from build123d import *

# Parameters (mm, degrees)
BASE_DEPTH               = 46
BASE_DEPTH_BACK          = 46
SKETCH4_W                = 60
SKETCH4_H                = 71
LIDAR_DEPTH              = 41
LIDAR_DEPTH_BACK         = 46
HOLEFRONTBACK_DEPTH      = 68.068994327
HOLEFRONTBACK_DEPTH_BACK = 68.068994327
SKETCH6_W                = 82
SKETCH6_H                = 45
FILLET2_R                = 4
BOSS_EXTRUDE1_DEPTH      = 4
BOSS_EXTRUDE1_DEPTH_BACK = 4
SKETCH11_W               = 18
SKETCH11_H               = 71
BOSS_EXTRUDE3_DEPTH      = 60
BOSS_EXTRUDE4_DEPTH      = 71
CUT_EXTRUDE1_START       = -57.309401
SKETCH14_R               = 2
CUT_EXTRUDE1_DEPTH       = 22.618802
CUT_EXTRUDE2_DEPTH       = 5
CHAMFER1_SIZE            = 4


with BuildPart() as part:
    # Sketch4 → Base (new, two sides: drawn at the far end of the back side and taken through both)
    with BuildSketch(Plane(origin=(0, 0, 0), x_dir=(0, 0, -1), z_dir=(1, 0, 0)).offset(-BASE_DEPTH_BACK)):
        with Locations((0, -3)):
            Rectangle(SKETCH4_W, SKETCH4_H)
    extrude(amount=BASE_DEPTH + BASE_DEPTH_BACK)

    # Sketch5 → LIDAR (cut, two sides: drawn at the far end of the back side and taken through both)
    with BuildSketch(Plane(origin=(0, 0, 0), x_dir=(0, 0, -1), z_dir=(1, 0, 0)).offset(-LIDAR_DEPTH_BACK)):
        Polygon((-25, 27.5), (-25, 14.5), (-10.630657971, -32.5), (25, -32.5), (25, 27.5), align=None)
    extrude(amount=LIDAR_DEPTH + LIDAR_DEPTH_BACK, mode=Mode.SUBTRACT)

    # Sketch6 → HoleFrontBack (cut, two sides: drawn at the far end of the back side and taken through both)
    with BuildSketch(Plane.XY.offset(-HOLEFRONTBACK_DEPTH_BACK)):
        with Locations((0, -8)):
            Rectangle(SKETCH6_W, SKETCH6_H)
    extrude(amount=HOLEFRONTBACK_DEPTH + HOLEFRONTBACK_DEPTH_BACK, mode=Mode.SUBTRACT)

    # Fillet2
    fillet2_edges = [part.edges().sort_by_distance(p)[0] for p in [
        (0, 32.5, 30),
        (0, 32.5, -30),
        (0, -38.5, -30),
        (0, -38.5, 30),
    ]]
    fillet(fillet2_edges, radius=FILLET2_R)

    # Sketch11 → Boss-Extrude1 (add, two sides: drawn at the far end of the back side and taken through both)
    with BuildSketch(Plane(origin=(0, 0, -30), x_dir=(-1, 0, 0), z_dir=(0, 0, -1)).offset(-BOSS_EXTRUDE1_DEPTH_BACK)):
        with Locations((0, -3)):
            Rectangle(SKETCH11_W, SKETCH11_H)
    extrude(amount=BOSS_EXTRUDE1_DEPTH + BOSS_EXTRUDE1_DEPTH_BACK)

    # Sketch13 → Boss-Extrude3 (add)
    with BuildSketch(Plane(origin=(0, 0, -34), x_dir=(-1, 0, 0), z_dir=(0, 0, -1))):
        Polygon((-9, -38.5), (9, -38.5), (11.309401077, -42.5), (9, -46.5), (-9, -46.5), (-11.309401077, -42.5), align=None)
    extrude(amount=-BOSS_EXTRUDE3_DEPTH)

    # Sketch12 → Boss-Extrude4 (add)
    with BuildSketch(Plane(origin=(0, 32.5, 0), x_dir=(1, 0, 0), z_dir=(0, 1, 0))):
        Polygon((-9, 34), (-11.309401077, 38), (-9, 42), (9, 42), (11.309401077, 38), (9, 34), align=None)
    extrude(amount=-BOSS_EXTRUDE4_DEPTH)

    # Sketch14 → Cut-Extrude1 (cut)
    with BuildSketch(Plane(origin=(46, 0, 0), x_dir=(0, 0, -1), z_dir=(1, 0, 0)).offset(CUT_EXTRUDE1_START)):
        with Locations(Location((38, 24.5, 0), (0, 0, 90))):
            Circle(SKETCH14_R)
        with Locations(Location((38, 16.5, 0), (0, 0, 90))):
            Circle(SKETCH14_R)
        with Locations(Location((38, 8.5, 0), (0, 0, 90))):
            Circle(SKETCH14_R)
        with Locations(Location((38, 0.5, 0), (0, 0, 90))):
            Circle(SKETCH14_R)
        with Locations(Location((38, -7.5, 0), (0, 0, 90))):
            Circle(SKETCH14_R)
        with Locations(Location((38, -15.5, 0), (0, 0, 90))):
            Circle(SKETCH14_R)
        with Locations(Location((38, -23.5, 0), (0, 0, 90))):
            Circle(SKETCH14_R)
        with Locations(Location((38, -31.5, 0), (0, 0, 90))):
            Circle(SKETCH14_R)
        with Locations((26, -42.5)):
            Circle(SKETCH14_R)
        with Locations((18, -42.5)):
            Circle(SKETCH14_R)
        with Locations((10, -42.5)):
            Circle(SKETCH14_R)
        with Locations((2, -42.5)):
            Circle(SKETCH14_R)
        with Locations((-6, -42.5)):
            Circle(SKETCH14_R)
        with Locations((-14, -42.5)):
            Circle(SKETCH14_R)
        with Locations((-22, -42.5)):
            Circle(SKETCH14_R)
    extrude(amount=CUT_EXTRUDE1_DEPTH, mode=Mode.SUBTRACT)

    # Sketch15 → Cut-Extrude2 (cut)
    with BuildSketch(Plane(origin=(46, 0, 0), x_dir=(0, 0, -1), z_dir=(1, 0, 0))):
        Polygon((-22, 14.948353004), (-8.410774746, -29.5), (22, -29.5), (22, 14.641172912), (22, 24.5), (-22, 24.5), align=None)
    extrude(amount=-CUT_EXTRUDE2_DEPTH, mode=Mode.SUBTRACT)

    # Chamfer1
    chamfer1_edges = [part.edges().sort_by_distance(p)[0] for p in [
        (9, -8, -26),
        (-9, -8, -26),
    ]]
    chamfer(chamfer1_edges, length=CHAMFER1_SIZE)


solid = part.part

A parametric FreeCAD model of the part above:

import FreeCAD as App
import Part
import Sketcher
Q = App.Units.Quantity


def edges_at(feature, points):
    """Names of the edges that pass closest to the given points."""
    edges = feature.Shape.Edges
    near = lambda p: min(range(len(edges)), key=lambda i: edges[i].distToShape(Part.Vertex(*p))[0])
    return sorted({f"Edge{near(p) + 1}" for p in points})


def add_polygon(sketch, points):
    """Adds a closed chain of lines whose ends are joined by coincident constraints."""
    first, n = sketch.GeometryCount, len(points)
    for a, b in zip(points, points[1:] + points[:1]):
        sketch.addGeometry(Part.LineSegment(App.Vector(*a, 0), App.Vector(*b, 0)), False)
    for i in range(n):
        sketch.addConstraint(Sketcher.Constraint("Coincident", first + i, 2, first + (i + 1) % n, 1))

doc = App.newDocument("Part")
params = doc.addObject("Spreadsheet::Sheet", "Params")
for row, (alias, value) in enumerate([
    ("sketch1_width", "71 mm"),
    ("sketch1_height", "60 mm"),
    ("pad1_length", "46 mm"),
    ("pad1_length2", "46 mm"),
    ("sketch2_width", "13 mm"),
    ("sketch2_width2", "60 mm"),
    ("sketch2_height", "50 mm"),
    ("pocket1_length", "41 mm"),
    ("pocket1_length2", "46 mm"),
    ("sketch3_width", "82 mm"),
    ("sketch3_height", "45 mm"),
    ("fillet_radius", "4 mm"),
    ("sketch4_width", "18 mm"),
    ("sketch4_height", "71 mm"),
    ("pad2_length", "4 mm"),
    ("pad2_length2", "4 mm"),
    ("sketch5_width", "18 mm"),
    ("pad3_length", "60 mm"),
    ("sketch6_width", "18 mm"),
    ("pad4_length", "71 mm"),
    ("sketch7_diameter", "4 mm"),
    ("pocket3_length", "22.618802 mm"),
    ("sketch8_width", "54 mm"),
    ("sketch8_height", "44 mm"),
    ("pocket4_length", "5 mm"),
    ("chamfer_size", "4 mm"),
], start=1):
    params.set(f"A{row}", alias)
    params.set(f"B{row}", "=" + value)
    params.setAlias(f"B{row}", alias)

body = doc.addObject("PartDesign::Body", "Body")

sketch1 = body.newObject("Sketcher::SketchObject", "Sketch")
sketch1.AttachmentSupport = (doc.getObject("YZ_Plane"), [""])
sketch1.MapMode = "FlatFace"
add_polygon(sketch1, [(32.5, 30), (-38.5, 30), (-38.5, -30), (32.5, -30)])
sketch1.addConstraint([
    Sketcher.Constraint("Horizontal", 0),
    Sketcher.Constraint("Vertical", 1),
    Sketcher.Constraint("Horizontal", 2),
    Sketcher.Constraint("Vertical", 3),
    Sketcher.Constraint("DistanceX", 0, 2, 0, 1, Q("71 mm")),
    Sketcher.Constraint("DistanceY", 1, 2, 1, 1, Q("60 mm")),
    Sketcher.Constraint("DistanceY", -1, 1, 0, 2, Q("30 mm")),
    Sketcher.Constraint("DistanceX", 0, 2, -1, 1, Q("38.5 mm")),
])
sketch1.setExpression("Constraints[8]", "Params.sketch1_width")
sketch1.setExpression("Constraints[9]", "Params.sketch1_height")
pad1 = body.newObject("PartDesign::Pad", "Pad")
pad1.Profile = sketch1
pad1.Type = "TwoLengths"
pad1.setExpression("Length", "Params.pad1_length")
pad1.setExpression("Length2", "Params.pad1_length2")

sketch2 = body.newObject("Sketcher::SketchObject", "Sketch001")
sketch2.AttachmentSupport = (doc.getObject("YZ_Plane"), [""])
sketch2.MapMode = "FlatFace"
add_polygon(sketch2, [(27.5, 25), (14.5, 25), (-32.5, 10.630658), (-32.5, -25), (27.5, -25)])
sketch2.addConstraint([
    Sketcher.Constraint("Horizontal", 0),
    Sketcher.Constraint("Vertical", 2),
    Sketcher.Constraint("Horizontal", 3),
    Sketcher.Constraint("Vertical", 4),
    Sketcher.Constraint("DistanceX", 0, 2, 0, 1, Q("13 mm")),
    Sketcher.Constraint("DistanceX", 3, 1, 3, 2, Q("60 mm")),
    Sketcher.Constraint("DistanceY", 4, 1, 4, 2, Q("50 mm")),
    Sketcher.Constraint("Angle", 1, Q("-163 deg")),
    Sketcher.Constraint("DistanceY", -1, 1, 0, 2, Q("25 mm")),
    Sketcher.Constraint("DistanceX", -1, 1, 0, 2, Q("14.5 mm")),
])
sketch2.setExpression("Constraints[9]", "Params.sketch2_width")
sketch2.setExpression("Constraints[10]", "Params.sketch2_width2")
sketch2.setExpression("Constraints[11]", "Params.sketch2_height")
pocket1 = body.newObject("PartDesign::Pocket", "Pocket")
pocket1.Profile = sketch2
pocket1.Type = "TwoLengths"
pocket1.setExpression("Length", "Params.pocket1_length")
pocket1.setExpression("Length2", "Params.pocket1_length2")
pocket1.Reversed = True

sketch3 = body.newObject("Sketcher::SketchObject", "Sketch002")
sketch3.AttachmentSupport = (doc.getObject("XY_Plane"), [""])
sketch3.MapMode = "FlatFace"
add_polygon(sketch3, [(-41, 14.5), (-41, -30.5), (41, -30.5), (41, 14.5)])
sketch3.addConstraint([
    Sketcher.Constraint("Vertical", 0),
    Sketcher.Constraint("Horizontal", 1),
    Sketcher.Constraint("Vertical", 2),
    Sketcher.Constraint("Horizontal", 3),
    Sketcher.Constraint("DistanceX", 1, 1, 1, 2, Q("82 mm")),
    Sketcher.Constraint("DistanceY", 0, 2, 0, 1, Q("45 mm")),
    Sketcher.Constraint("DistanceX", 0, 2, -1, 1, Q("41 mm")),
    Sketcher.Constraint("DistanceY", 0, 2, -1, 1, Q("30.5 mm")),
])
sketch3.setExpression("Constraints[8]", "Params.sketch3_width")
sketch3.setExpression("Constraints[9]", "Params.sketch3_height")
pocket2 = body.newObject("PartDesign::Pocket", "Pocket001")
pocket2.Profile = sketch3
pocket2.Type = "ThroughAll"
pocket2.Midplane = True
doc.recompute()

fillet = body.newObject("PartDesign::Fillet", "Fillet")
fillet.Base = (pocket2, edges_at(pocket2, [
    (0, 32.5, 30),
    (0, 32.5, -30),
    (0, -38.5, -30),
    (0, -38.5, 30),
]))
fillet.setExpression("Radius", "Params.fillet_radius")

sketch4 = body.newObject("Sketcher::SketchObject", "Sketch003")
sketch4.AttachmentSupport = (doc.getObject("XY_Plane"), [""])
sketch4.MapMode = "FlatFace"
sketch4.AttachmentOffset = App.Placement(App.Vector(0, 0, -30), App.Rotation())
add_polygon(sketch4, [(9, 32.5), (9, -38.5), (-9, -38.5), (-9, 32.5)])
sketch4.addConstraint([
    Sketcher.Constraint("Vertical", 0),
    Sketcher.Constraint("Horizontal", 1),
    Sketcher.Constraint("Vertical", 2),
    Sketcher.Constraint("Horizontal", 3),
    Sketcher.Constraint("DistanceX", 1, 2, 1, 1, Q("18 mm")),
    Sketcher.Constraint("DistanceY", 0, 2, 0, 1, Q("71 mm")),
    Sketcher.Constraint("DistanceX", -1, 1, 0, 2, Q("9 mm")),
    Sketcher.Constraint("DistanceY", 0, 2, -1, 1, Q("38.5 mm")),
])
sketch4.setExpression("Constraints[8]", "Params.sketch4_width")
sketch4.setExpression("Constraints[9]", "Params.sketch4_height")
pad2 = body.newObject("PartDesign::Pad", "Pad001")
pad2.Profile = sketch4
pad2.Type = "TwoLengths"
pad2.setExpression("Length", "Params.pad2_length")
pad2.setExpression("Length2", "Params.pad2_length2")
pad2.Reversed = True

sketch5 = body.newObject("Sketcher::SketchObject", "Sketch004")
sketch5.AttachmentSupport = (doc.getObject("XY_Plane"), [""])
sketch5.MapMode = "FlatFace"
sketch5.AttachmentOffset = App.Placement(App.Vector(0, 0, -34), App.Rotation())
add_polygon(sketch5, [(-9, -38.5), (9, -38.5), (11.309401, -42.5), (9, -46.5), (-9, -46.5), (-11.309401, -42.5)])
sketch5.addConstraint([
    Sketcher.Constraint("Horizontal", 0),
    Sketcher.Constraint("Horizontal", 3),
    Sketcher.Constraint("Symmetric", 1, 2, 4, 2, -2),
    Sketcher.Constraint("Parallel", 1, 4),
    Sketcher.Constraint("Parallel", 2, 5),
    Sketcher.Constraint("Vertical", 0, 2, 2, 2),
    Sketcher.Constraint("Vertical", 3, 2, 5, 2),
    Sketcher.Constraint("DistanceX", 0, 1, 0, 2, Q("18 mm")),
    Sketcher.Constraint("Angle", 1, Q("-60 deg")),
    Sketcher.Constraint("DistanceY", 1, 2, 0, 2, Q("4 mm")),
    Sketcher.Constraint("DistanceY", 0, 2, -1, 1, Q("38.5 mm")),
])
sketch5.setExpression("Constraints[13]", "Params.sketch5_width")
pad3 = body.newObject("PartDesign::Pad", "Pad002")
pad3.Profile = sketch5
pad3.setExpression("Length", "Params.pad3_length")

sketch6 = body.newObject("Sketcher::SketchObject", "Sketch005")
sketch6.AttachmentSupport = (doc.getObject("XZ_Plane"), [""])
sketch6.MapMode = "FlatFace"
sketch6.AttachmentOffset = App.Placement(App.Vector(0, 0, -32.5), App.Rotation())
add_polygon(sketch6, [(-11.309401, -38), (-9, -34), (9, -34), (11.309401, -38), (9, -42), (-9, -42)])
sketch6.addConstraint([
    Sketcher.Constraint("Horizontal", 1),
    Sketcher.Constraint("Horizontal", 4),
    Sketcher.Constraint("Symmetric", 2, 2, 5, 2, -2),
    Sketcher.Constraint("Parallel", 0, 3),
    Sketcher.Constraint("Parallel", 2, 5),
    Sketcher.Constraint("Vertical", 1, 2, 3, 2),
    Sketcher.Constraint("Vertical", 0, 2, 4, 2),
    Sketcher.Constraint("DistanceX", 1, 1, 1, 2, Q("18 mm")),
    Sketcher.Constraint("Angle", 0, Q("60 deg")),
    Sketcher.Constraint("DistanceY", 0, 2, -1, 1, Q("34 mm")),
    Sketcher.Constraint("DistanceY", 2, 2, -1, 1, Q("38 mm")),
])
sketch6.setExpression("Constraints[13]", "Params.sketch6_width")
pad4 = body.newObject("PartDesign::Pad", "Pad003")
pad4.Profile = sketch6
pad4.setExpression("Length", "Params.pad4_length")

sketch7 = body.newObject("Sketcher::SketchObject", "Sketch006")
sketch7.AttachmentSupport = (doc.getObject("YZ_Plane"), [""])
sketch7.MapMode = "FlatFace"
sketch7.AttachmentOffset = App.Placement(App.Vector(0, 0, -11.309401), App.Rotation())
sketch7.addGeometry([
    Part.Circle(App.Vector(24.5, -38, 0), App.Vector(0, 0, 1), 2),
    Part.Circle(App.Vector(16.5, -38, 0), App.Vector(0, 0, 1), 2),
    Part.Circle(App.Vector(8.5, -38, 0), App.Vector(0, 0, 1), 2),
    Part.Circle(App.Vector(0.5, -38, 0), App.Vector(0, 0, 1), 2),
    Part.Circle(App.Vector(-7.5, -38, 0), App.Vector(0, 0, 1), 2),
    Part.Circle(App.Vector(-15.5, -38, 0), App.Vector(0, 0, 1), 2),
    Part.Circle(App.Vector(-23.5, -38, 0), App.Vector(0, 0, 1), 2),
    Part.Circle(App.Vector(-31.5, -38, 0), App.Vector(0, 0, 1), 2),
    Part.Circle(App.Vector(-42.5, -26, 0), App.Vector(0, 0, 1), 2),
    Part.Circle(App.Vector(-42.5, -18, 0), App.Vector(0, 0, 1), 2),
    Part.Circle(App.Vector(-42.5, -10, 0), App.Vector(0, 0, 1), 2),
    Part.Circle(App.Vector(-42.5, -2, 0), App.Vector(0, 0, 1), 2),
    Part.Circle(App.Vector(-42.5, 6, 0), App.Vector(0, 0, 1), 2),
    Part.Circle(App.Vector(-42.5, 14, 0), App.Vector(0, 0, 1), 2),
    Part.Circle(App.Vector(-42.5, 22, 0), App.Vector(0, 0, 1), 2),
], False)
sketch7.addConstraint([
    Sketcher.Constraint("Equal", 0, 1),
    Sketcher.Constraint("Equal", 1, 2),
    Sketcher.Constraint("Equal", 2, 3),
    Sketcher.Constraint("Equal", 3, 4),
    Sketcher.Constraint("Equal", 4, 5),
    Sketcher.Constraint("Equal", 5, 6),
    Sketcher.Constraint("Equal", 6, 7),
    Sketcher.Constraint("Equal", 7, 8),
    Sketcher.Constraint("Equal", 8, 9),
    Sketcher.Constraint("Equal", 9, 10),
    Sketcher.Constraint("Equal", 10, 11),
    Sketcher.Constraint("Equal", 11, 12),
    Sketcher.Constraint("Equal", 12, 13),
    Sketcher.Constraint("Equal", 13, 14),
    Sketcher.Constraint("Horizontal", 0, 3, 1, 3),
    Sketcher.Constraint("Horizontal", 1, 3, 2, 3),
    Sketcher.Constraint("Horizontal", 2, 3, 3, 3),
    Sketcher.Constraint("Horizontal", 3, 3, 4, 3),
    Sketcher.Constraint("Horizontal", 4, 3, 5, 3),
    Sketcher.Constraint("Horizontal", 5, 3, 6, 3),
    Sketcher.Constraint("Horizontal", 6, 3, 7, 3),
    Sketcher.Constraint("Vertical", 8, 3, 9, 3),
    Sketcher.Constraint("Vertical", 9, 3, 10, 3),
    Sketcher.Constraint("Vertical", 10, 3, 11, 3),
    Sketcher.Constraint("Vertical", 11, 3, 12, 3),
    Sketcher.Constraint("Vertical", 12, 3, 13, 3),
    Sketcher.Constraint("Vertical", 13, 3, 14, 3),
    Sketcher.Constraint("Diameter", 0, Q("4 mm")),
    Sketcher.Constraint("DistanceY", 0, 3, -1, 1, Q("38 mm")),
    Sketcher.Constraint("DistanceY", 8, 3, -1, 1, Q("26 mm")),
    Sketcher.Constraint("DistanceY", 9, 3, -1, 1, Q("18 mm")),
    Sketcher.Constraint("DistanceY", 10, 3, -1, 1, Q("10 mm")),
    Sketcher.Constraint("DistanceY", 11, 3, -1, 1, Q("2 mm")),
    Sketcher.Constraint("DistanceY", -1, 1, 12, 3, Q("6 mm")),
    Sketcher.Constraint("DistanceY", -1, 1, 13, 3, Q("14 mm")),
    Sketcher.Constraint("DistanceY", -1, 1, 14, 3, Q("22 mm")),
    Sketcher.Constraint("DistanceX", 1, 3, 0, 3, Q("8 mm")),
    Sketcher.Constraint("DistanceX", 2, 3, 1, 3, Q("8 mm")),
    Sketcher.Constraint("DistanceX", 3, 3, 2, 3, Q("8 mm")),
    Sketcher.Constraint("DistanceX", 4, 3, 3, 3, Q("8 mm")),
    Sketcher.Constraint("DistanceX", 5, 3, 4, 3, Q("8 mm")),
    Sketcher.Constraint("DistanceX", 6, 3, 5, 3, Q("8 mm")),
    Sketcher.Constraint("DistanceX", 7, 3, 6, 3, Q("8 mm")),
    Sketcher.Constraint("DistanceX", 8, 3, 7, 3, Q("11 mm")),
    Sketcher.Constraint("DistanceX", -1, 1, 0, 3, Q("24.5 mm")),
])
sketch7.setExpression("Constraints[27]", "Params.sketch7_diameter")
pocket3 = body.newObject("PartDesign::Pocket", "Pocket002")
pocket3.Profile = sketch7
pocket3.setExpression("Length", "Params.pocket3_length")
pocket3.Reversed = True

sketch8 = body.newObject("Sketcher::SketchObject", "Sketch007")
sketch8.AttachmentSupport = (doc.getObject("YZ_Plane"), [""])
sketch8.MapMode = "FlatFace"
sketch8.AttachmentOffset = App.Placement(App.Vector(0, 0, 46), App.Rotation())
add_polygon(sketch8, [(14.948353, 22), (-29.5, 8.410775), (-29.5, -22), (24.5, -22), (24.5, 22)])
sketch8.addConstraint([
    Sketcher.Constraint("Vertical", 1),
    Sketcher.Constraint("Horizontal", 2),
    Sketcher.Constraint("Vertical", 3),
    Sketcher.Constraint("Horizontal", 4),
    Sketcher.Constraint("DistanceX", 2, 1, 2, 2, Q("54 mm")),
    Sketcher.Constraint("DistanceY", 3, 1, 3, 2, Q("44 mm")),
    Sketcher.Constraint("Angle", 0, Q("-163 deg")),
    Sketcher.Constraint("DistanceY", 1, 2, -1, 1, Q("22 mm")),
    Sketcher.Constraint("DistanceX", 0, 2, -1, 1, Q("29.5 mm")),
    Sketcher.Constraint("DistanceX", 4, 2, 4, 1, Q("9.551647 mm")),
])
sketch8.setExpression("Constraints[9]", "Params.sketch8_width")
sketch8.setExpression("Constraints[10]", "Params.sketch8_height")
pocket4 = body.newObject("PartDesign::Pocket", "Pocket003")
pocket4.Profile = sketch8
pocket4.setExpression("Length", "Params.pocket4_length")
doc.recompute()

chamfer = body.newObject("PartDesign::Chamfer", "Chamfer")
chamfer.Base = (pocket4, edges_at(pocket4, [(9, -8, -26), (-9, -8, -26)]))
chamfer.setExpression("Size", "Params.chamfer_size")

doc.recompute()
